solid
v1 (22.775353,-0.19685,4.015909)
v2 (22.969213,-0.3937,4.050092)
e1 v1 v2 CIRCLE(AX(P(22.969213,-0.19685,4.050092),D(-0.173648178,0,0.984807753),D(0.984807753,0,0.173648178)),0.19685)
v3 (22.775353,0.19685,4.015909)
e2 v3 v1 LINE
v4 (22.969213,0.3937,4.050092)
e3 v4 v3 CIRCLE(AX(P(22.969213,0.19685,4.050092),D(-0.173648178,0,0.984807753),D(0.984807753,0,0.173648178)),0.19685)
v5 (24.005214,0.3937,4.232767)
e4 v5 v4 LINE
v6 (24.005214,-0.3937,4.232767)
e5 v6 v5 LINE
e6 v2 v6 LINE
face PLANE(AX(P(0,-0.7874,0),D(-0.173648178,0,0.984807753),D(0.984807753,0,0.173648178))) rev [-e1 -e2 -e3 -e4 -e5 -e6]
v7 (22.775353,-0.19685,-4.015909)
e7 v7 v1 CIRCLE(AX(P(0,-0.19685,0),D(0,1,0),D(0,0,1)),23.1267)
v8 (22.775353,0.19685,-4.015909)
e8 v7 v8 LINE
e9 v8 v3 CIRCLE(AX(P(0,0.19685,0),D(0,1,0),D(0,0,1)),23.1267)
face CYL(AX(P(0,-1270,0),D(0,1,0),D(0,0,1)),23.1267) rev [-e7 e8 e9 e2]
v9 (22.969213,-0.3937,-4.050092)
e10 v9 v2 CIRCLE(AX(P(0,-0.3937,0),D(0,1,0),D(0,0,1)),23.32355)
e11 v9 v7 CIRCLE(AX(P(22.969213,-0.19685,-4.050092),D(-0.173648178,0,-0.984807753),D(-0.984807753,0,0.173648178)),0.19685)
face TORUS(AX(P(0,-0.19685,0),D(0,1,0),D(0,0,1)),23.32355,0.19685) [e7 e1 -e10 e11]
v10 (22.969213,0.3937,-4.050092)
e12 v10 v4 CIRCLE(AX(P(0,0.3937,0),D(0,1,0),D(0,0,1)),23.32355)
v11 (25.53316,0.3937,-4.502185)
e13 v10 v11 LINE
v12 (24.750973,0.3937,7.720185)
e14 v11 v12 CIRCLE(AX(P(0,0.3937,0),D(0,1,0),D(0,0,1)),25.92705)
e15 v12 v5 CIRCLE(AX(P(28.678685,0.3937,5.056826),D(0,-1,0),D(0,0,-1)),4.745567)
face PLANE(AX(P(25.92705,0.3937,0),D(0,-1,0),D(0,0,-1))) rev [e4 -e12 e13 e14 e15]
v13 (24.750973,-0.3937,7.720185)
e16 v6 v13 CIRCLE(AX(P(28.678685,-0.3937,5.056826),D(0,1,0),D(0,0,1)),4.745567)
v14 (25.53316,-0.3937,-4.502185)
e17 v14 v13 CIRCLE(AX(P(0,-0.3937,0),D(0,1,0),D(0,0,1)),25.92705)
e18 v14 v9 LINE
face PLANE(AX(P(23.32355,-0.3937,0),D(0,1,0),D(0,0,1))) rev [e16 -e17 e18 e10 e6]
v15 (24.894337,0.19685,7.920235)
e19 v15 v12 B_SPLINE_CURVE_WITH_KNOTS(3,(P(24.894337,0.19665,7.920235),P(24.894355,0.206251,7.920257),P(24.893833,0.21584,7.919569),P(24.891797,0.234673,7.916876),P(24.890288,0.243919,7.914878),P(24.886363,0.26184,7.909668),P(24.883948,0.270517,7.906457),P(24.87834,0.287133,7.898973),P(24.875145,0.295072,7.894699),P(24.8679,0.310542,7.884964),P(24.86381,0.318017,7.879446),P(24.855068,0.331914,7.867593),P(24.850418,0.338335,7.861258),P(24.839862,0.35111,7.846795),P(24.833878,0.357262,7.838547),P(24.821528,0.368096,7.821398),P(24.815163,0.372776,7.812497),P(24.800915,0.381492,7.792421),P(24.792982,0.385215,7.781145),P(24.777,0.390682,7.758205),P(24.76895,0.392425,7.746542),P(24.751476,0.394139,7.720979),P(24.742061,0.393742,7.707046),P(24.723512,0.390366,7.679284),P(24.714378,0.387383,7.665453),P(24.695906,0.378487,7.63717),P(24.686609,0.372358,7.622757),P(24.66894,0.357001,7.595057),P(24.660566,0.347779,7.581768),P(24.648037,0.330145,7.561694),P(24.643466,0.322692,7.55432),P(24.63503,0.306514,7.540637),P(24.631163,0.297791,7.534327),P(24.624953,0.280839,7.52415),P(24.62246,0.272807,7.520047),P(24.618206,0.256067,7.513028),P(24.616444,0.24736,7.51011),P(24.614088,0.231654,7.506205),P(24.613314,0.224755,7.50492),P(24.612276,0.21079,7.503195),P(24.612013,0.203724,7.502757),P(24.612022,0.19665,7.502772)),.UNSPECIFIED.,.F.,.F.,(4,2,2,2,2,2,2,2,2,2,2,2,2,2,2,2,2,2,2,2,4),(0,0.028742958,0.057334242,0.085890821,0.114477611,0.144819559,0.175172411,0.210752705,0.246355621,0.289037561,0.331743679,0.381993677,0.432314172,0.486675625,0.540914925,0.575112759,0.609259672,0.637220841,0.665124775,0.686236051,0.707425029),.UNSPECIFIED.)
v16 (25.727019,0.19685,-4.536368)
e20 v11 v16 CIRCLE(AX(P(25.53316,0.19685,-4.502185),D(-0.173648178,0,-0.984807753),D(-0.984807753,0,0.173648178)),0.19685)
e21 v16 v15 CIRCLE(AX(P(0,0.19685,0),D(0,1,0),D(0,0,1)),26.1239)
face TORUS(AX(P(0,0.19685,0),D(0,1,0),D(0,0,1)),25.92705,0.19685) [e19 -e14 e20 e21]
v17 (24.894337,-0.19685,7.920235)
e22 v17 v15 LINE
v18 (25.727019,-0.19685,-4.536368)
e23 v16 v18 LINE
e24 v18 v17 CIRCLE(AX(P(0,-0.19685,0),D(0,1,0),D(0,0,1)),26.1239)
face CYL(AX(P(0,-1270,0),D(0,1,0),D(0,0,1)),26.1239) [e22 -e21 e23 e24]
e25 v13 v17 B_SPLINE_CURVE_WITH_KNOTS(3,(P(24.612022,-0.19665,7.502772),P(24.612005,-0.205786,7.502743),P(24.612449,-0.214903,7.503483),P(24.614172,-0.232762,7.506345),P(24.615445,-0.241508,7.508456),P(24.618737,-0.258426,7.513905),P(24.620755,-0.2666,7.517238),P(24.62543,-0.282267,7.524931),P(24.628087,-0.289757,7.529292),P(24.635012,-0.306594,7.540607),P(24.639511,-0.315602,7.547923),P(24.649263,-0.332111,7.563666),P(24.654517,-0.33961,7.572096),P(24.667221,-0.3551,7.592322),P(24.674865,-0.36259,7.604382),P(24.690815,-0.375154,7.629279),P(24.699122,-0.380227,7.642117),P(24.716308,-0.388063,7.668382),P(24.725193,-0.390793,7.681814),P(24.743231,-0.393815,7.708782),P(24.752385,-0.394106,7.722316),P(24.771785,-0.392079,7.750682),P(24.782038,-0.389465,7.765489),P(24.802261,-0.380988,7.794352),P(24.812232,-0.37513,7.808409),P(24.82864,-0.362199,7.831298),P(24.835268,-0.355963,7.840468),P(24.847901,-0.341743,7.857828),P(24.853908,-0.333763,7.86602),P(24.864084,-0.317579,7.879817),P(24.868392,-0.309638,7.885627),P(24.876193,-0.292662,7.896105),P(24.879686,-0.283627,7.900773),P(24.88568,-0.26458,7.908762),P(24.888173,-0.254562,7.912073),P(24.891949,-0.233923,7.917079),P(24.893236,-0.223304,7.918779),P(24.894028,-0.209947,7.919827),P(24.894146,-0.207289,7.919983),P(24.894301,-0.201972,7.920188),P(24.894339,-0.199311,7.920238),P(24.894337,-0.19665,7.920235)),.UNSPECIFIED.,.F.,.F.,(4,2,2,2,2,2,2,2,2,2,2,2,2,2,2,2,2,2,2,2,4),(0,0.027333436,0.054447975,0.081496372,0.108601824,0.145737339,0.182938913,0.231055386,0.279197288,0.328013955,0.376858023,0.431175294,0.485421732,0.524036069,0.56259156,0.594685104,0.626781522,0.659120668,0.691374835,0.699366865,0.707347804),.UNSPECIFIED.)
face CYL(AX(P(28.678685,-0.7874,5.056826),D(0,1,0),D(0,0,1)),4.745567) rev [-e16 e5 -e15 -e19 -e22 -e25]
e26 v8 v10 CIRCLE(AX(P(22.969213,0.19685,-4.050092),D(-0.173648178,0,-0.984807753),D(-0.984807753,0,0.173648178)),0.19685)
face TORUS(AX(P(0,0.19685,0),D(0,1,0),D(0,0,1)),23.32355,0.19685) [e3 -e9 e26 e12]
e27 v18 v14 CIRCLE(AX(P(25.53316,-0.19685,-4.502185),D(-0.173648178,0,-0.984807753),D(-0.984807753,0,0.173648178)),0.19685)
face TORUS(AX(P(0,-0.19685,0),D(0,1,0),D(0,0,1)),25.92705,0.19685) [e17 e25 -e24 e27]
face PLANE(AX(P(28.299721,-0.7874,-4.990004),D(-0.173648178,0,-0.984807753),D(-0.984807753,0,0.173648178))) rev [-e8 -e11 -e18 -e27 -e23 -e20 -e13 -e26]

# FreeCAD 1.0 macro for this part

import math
import FreeCAD as App
import Part
import Sketcher
Q = App.Units.Quantity

doc = App.newDocument("Part")
body = doc.addObject("PartDesign::Body", "Body")

sketch1 = body.newObject("Sketcher::SketchObject", "Sketch")
sketch1.AttachmentSupport = (doc.getObject("XY_Plane"), [""])
sketch1.MapMode = "FlatFace"
sketch1.addGeometry([
    Part.LineSegment(App.Vector(23.1267, 0.19685, 0), App.Vector(23.1267, -0.19685, 0)),
    Part.ArcOfCircle(Part.Circle(App.Vector(23.32355, -0.19685, 0), App.Vector(0, 0, 1), 0.19685), math.radians(180), math.radians(270)),
    Part.LineSegment(App.Vector(23.32355, -0.3937, 0), App.Vector(25.92705, -0.3937, 0)),
    Part.ArcOfCircle(Part.Circle(App.Vector(25.92705, -0.19685, 0), App.Vector(0, 0, 1), 0.19685), math.radians(-90), math.radians(0)),
    Part.LineSegment(App.Vector(26.1239, -0.19685, 0), App.Vector(26.1239, 0.19685, 0)),
    Part.ArcOfCircle(Part.Circle(App.Vector(25.92705, 0.19685, 0), App.Vector(0, 0, 1), 0.19685), math.radians(0), math.radians(90)),
    Part.LineSegment(App.Vector(25.92705, 0.3937, 0), App.Vector(23.32355, 0.3937, 0)),
    Part.ArcOfCircle(Part.Circle(App.Vector(23.32355, 0.19685, 0), App.Vector(0, 0, 1), 0.19685), math.radians(90), math.radians(180)),
], False)
sketch1.addConstraint([
    Sketcher.Constraint("Tangent", 0, 2, 1, 1),
    Sketcher.Constraint("Tangent", 1, 2, 2, 1),
    Sketcher.Constraint("Tangent", 2, 2, 3, 1),
    Sketcher.Constraint("Tangent", 3, 2, 4, 1),
    Sketcher.Constraint("Tangent", 4, 2, 5, 1),
    Sketcher.Constraint("Tangent", 5, 2, 6, 1),
    Sketcher.Constraint("Tangent", 6, 2, 7, 1),
    Sketcher.Constraint("Tangent", 7, 2, 0, 1),
    Sketcher.Constraint("Vertical", 0),
    Sketcher.Constraint("Horizontal", 2),
    Sketcher.Constraint("Vertical", 4),
    Sketcher.Constraint("Horizontal", 6),
    Sketcher.Constraint("Equal", 1, 3),
    Sketcher.Constraint("Equal", 3, 5),
    Sketcher.Constraint("Equal", 5, 7),
    Sketcher.Constraint("DistanceX", 2, 1, 2, 2, Q("0.1025 in")),
    Sketcher.Constraint("DistanceY", 0, 2, 0, 1, Q("0.0155 in")),
    Sketcher.Constraint("Radius", 1, Q("0.19685 mm")),
    Sketcher.Constraint("DistanceX", -1, 1, 0, 2, Q("0.9105 in")),
    Sketcher.Constraint("DistanceY", 1, 2, -1, 1, Q("0.0155 in")),
])
revolution = body.newObject("PartDesign::Revolution", "Revolution")
revolution.Profile = sketch1
revolution.ReferenceAxis = (sketch1, ["V_Axis"])
revolution.Angle = 360

sketch2 = body.newObject("Sketcher::SketchObject", "Sketch001")
sketch2.AttachmentSupport = (doc.getObject("XZ_Plane"), [""])
sketch2.MapMode = "FlatFace"
sketch2.addGeometry([
    Part.LineSegment(App.Vector(0, 0, 0), App.Vector(24.005214, 4.232767, 0)),
    Part.ArcOfCircle(Part.Circle(App.Vector(28.678685, 5.056826, 0), App.Vector(0, 0, 1), 4.745567), math.radians(109.324885), math.radians(190)),
    Part.ArcOfCircle(Part.Circle(App.Vector(0, 0, 0), App.Vector(0, 0, 1), 28.73629), math.radians(-10), math.radians(19.378727)),
    Part.LineSegment(App.Vector(28.299721, -4.990004, 0), App.Vector(0, 0, 0)),
], False)
sketch2.addConstraint([
    Sketcher.Constraint("Coincident", 0, 2, 1, 2),
    Sketcher.Constraint("Coincident", 1, 1, 2, 2),
    Sketcher.Constraint("Coincident", 2, 1, 3, 1),
    Sketcher.Constraint("Coincident", 3, 2, 0, 1),
    Sketcher.Constraint("Coincident", 2, 3, -1, 1),
    Sketcher.Constraint("Coincident", 3, 2, -1, 1),
    Sketcher.Constraint("Angle", 0, Q("10 deg")),
    Sketcher.Constraint("Angle", 3, Q("170 deg")),
    Sketcher.Constraint("Radius", 2, Q("28.73629 mm")),
    Sketcher.Constraint("Radius", 1, Q("4.745567 mm")),
    Sketcher.Constraint("DistanceX", -1, 1, 1, 1, Q("27.108262 mm")),
    Sketcher.Constraint("DistanceX", 0, 2, 1, 3, Q("4.673471 mm")),
])
pocket1 = body.newObject("PartDesign::Pocket", "Pocket")
pocket1.Profile = sketch2
pocket1.Type = "ThroughAll"
pocket1.Midplane = True

doc.recompute()
